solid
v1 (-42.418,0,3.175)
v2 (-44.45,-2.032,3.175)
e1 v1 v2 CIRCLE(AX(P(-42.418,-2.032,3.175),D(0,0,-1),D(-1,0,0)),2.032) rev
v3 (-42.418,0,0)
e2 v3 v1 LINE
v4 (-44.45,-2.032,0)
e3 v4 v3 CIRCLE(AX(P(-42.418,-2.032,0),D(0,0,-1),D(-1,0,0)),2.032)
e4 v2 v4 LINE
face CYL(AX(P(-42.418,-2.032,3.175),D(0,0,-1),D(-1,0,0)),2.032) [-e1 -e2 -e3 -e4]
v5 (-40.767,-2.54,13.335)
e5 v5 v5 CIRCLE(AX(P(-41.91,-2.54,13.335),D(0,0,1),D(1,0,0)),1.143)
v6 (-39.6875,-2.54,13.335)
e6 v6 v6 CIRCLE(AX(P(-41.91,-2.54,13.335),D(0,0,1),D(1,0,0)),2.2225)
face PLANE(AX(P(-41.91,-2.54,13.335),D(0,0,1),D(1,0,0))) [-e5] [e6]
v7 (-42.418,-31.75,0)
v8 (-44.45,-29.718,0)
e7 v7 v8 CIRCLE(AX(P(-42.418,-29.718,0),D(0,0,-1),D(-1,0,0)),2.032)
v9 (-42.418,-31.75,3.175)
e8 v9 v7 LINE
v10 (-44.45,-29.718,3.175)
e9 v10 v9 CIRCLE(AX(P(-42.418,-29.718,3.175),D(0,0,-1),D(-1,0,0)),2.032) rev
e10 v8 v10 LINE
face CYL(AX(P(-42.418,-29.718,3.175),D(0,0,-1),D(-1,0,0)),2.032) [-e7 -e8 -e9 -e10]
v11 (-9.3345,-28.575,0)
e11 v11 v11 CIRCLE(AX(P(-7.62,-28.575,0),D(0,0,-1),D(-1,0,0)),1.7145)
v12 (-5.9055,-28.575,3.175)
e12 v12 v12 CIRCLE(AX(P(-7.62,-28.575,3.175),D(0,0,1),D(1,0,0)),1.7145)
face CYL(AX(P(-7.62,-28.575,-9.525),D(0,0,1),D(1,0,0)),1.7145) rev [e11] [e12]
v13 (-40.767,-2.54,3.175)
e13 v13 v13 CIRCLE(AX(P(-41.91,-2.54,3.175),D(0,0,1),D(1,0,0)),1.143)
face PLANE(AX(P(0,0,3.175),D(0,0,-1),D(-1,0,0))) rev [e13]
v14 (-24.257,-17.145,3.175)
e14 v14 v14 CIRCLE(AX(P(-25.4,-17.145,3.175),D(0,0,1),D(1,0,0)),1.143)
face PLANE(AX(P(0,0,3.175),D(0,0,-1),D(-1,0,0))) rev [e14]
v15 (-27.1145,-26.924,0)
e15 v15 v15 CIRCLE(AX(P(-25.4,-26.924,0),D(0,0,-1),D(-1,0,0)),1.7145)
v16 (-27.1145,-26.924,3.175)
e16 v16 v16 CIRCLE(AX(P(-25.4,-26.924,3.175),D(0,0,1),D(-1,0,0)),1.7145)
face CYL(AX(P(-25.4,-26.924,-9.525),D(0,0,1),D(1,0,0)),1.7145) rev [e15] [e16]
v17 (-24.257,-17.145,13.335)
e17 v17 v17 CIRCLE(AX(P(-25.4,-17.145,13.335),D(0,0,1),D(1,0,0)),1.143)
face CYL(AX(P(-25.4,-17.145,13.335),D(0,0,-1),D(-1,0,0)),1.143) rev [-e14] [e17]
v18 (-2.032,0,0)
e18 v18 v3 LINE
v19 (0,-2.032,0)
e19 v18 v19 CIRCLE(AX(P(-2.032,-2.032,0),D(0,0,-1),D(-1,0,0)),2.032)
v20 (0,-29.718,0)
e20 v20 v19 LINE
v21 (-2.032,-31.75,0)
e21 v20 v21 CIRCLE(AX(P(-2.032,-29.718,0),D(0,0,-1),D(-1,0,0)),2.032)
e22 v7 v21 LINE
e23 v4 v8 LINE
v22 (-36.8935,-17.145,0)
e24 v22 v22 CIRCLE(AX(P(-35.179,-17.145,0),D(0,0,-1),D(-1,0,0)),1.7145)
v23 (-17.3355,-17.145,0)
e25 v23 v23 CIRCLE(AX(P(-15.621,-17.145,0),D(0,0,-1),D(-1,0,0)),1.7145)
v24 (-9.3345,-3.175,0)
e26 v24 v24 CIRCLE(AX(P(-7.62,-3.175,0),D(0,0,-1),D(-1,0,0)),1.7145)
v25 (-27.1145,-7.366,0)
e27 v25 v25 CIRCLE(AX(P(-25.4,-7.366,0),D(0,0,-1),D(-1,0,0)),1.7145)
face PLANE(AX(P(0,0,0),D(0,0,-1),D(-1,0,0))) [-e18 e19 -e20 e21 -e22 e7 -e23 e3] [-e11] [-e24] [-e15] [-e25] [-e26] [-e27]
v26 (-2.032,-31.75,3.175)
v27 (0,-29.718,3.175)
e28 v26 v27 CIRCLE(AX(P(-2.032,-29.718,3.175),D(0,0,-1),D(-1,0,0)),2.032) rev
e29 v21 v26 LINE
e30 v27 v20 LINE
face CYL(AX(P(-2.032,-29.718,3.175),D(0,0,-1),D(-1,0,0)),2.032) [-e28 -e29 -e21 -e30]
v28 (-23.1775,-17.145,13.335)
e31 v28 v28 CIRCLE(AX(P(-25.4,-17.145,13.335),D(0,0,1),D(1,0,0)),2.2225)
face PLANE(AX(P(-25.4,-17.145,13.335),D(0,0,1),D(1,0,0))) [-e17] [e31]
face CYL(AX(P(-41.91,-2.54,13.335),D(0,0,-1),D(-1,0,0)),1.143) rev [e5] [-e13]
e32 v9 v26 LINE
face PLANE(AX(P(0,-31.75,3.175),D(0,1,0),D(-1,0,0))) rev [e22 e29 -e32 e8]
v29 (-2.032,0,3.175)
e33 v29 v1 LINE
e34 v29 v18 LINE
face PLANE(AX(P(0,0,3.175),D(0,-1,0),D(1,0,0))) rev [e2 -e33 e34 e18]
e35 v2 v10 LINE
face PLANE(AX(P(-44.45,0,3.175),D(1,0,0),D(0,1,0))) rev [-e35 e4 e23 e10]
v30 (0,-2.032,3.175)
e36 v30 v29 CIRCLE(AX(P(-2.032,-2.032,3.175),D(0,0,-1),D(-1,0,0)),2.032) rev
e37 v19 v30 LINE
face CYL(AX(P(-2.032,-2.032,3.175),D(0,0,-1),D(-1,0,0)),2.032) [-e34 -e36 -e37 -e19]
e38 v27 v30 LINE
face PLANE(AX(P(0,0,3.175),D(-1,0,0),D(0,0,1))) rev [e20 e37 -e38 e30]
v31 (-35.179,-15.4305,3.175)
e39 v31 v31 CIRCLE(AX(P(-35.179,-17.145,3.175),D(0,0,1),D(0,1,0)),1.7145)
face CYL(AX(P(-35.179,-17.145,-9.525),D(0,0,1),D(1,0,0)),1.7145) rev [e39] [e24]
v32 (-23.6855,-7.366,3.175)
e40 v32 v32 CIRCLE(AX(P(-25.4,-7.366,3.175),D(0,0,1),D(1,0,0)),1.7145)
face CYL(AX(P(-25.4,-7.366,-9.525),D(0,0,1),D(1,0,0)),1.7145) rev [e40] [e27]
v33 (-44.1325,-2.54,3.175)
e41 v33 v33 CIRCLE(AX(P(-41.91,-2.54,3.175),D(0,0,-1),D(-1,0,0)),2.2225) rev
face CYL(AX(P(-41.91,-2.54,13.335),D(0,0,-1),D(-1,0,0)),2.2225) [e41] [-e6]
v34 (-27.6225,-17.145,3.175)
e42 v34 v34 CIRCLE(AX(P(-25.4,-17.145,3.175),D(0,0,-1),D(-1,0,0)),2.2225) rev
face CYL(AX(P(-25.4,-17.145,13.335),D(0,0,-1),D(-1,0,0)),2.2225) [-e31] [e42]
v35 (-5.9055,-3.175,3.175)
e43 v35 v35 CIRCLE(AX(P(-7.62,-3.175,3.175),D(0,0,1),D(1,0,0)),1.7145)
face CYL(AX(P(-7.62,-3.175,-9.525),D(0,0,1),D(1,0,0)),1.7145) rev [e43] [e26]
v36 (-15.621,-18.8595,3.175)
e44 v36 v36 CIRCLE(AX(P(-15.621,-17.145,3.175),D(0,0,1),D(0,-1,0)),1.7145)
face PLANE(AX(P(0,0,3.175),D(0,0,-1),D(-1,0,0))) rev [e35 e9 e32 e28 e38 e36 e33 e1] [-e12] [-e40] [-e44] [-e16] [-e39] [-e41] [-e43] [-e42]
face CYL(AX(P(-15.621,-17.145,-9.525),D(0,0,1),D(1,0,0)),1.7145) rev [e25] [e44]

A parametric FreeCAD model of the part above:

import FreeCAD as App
import Part
import Sketcher
from FreeCAD import Vector
Q = App.Units.Quantity


def edges_at(feature, points):
    """Names of the edges that pass closest to the given points."""
    edges = feature.Shape.Edges
    near = lambda p: min(range(len(edges)), key=lambda i: edges[i].distToShape(Part.Vertex(*p))[0])
    return sorted({f"Edge{near(p) + 1}" for p in points})


def add_polygon(sketch, points):
    """Adds a closed chain of lines whose ends are joined by coincident constraints."""
    first, n = sketch.GeometryCount, len(points)
    for a, b in zip(points, points[1:] + points[:1]):
        sketch.addGeometry(Part.LineSegment(App.Vector(*a, 0), App.Vector(*b, 0)), False)
    for i in range(n):
        sketch.addConstraint(Sketcher.Constraint("Coincident", first + i, 2, first + (i + 1) % n, 1))

doc = App.newDocument("Part")
body = doc.addObject("PartDesign::Body", "Body")

# Sketch on XY plane
sketch1 = body.newObject("Sketcher::SketchObject", "Sketch")
sketch1.AttachmentSupport = (doc.getObject("XY_Plane"), [""])
sketch1.MapMode = "FlatFace"
add_polygon(sketch1, [(-44, 0), (-44, -32), (0, -32), (0, 0)])  # lines 0-3
sketch1.addConstraint(Sketcher.Constraint("Vertical", 0))
sketch1.addConstraint(Sketcher.Constraint("Horizontal", 1))
sketch1.addConstraint(Sketcher.Constraint("Vertical", 2))
sketch1.addConstraint(Sketcher.Constraint("Horizontal", 3))
sketch1.addConstraint(Sketcher.Constraint("Coincident", 2, 2, -1, 1))
sketch1.addConstraint(Sketcher.Constraint("DistanceX", 1, 1, 1, 2, Q("1.75 in")))
sketch1.addConstraint(Sketcher.Constraint("DistanceY", 0, 2, 0, 1, Q("1.25 in")))
pad1 = body.newObject("PartDesign::Pad", "Pad")
pad1.Profile = sketch1
pad1.Length = Q("0.125 in")

# Sketch on XY plane
sketch2 = body.newObject("Sketcher::SketchObject", "Sketch001")
sketch2.AttachmentSupport = (doc.getObject("XY_Plane"), [""])
sketch2.MapMode = "FlatFace"
sketch2.AttachmentOffset = App.Placement(Vector(0, 0, 0.125 * 25.4), App.Rotation())
sketch2.addGeometry(Part.Circle(Vector(-41.9, -2.5, 0), Vector(0, 0, 1), 2.2), False)
sketch2.addGeometry(Part.Circle(Vector(-41.9, -2.5, 0), Vector(0, 0, 1), 1.1), False)
sketch2.addGeometry(Part.Circle(Vector(-25.4, -17.1, 0), Vector(0, 0, 1), 2.2), False)
sketch2.addGeometry(Part.Circle(Vector(-25.4, -17.1, 0), Vector(0, 0, 1), 1.1), False)
sketch2.addConstraint(Sketcher.Constraint("Coincident", 1, 3, 0, 3))
sketch2.addConstraint(Sketcher.Constraint("Coincident", 3, 3, 2, 3))
sketch2.addConstraint(Sketcher.Constraint("Equal", 0, 2))
sketch2.addConstraint(Sketcher.Constraint("Equal", 1, 3))
sketch2.addConstraint(Sketcher.Constraint("Diameter", 1, Q("0.09 in")))
sketch2.addConstraint(Sketcher.Constraint("Diameter", 0, Q("0.175 in")))
sketch2.addConstraint(Sketcher.Constraint("DistanceX", 2, 3, -1, 1, Q("1 in")))
sketch2.addConstraint(Sketcher.Constraint("DistanceY", 0, 3, -1, 1, Q("0.1 in")))
sketch2.addConstraint(Sketcher.Constraint("DistanceX", 0, 3, -1, 1, Q("1.65 in")))
sketch2.addConstraint(Sketcher.Constraint("DistanceY", 2, 3, -1, 1, Q("0.675 in")))
pad2 = body.newObject("PartDesign::Pad", "Pad001")
pad2.Profile = sketch2
pad2.Length = Q("0.4 in")

# Sketch on XY plane
sketch3 = body.newObject("Sketcher::SketchObject", "Sketch002")
sketch3.AttachmentSupport = (doc.getObject("XY_Plane"), [""])
sketch3.MapMode = "FlatFace"
sketch3.AttachmentOffset = App.Placement(Vector(0, 0, 0.125 * 25.4), App.Rotation())
sketch3.addGeometry(Part.Circle(Vector(-7.6, -3.2, 0), Vector(0, 0, 1), 1.7), False)
sketch3.addGeometry(Part.Circle(Vector(-7.6, -28.6, 0), Vector(0, 0, 1), 1.7), False)
sketch3.addConstraint(Sketcher.Constraint("Equal", 0, 1))
sketch3.addConstraint(Sketcher.Constraint("Vertical", 0, 3, 1, 3))
sketch3.addConstraint(Sketcher.Constraint("Diameter", 0, Q("0.135 in")))
sketch3.addConstraint(Sketcher.Constraint("DistanceY", 1, 3, 0, 3, Q("1 in")))
sketch3.addConstraint(Sketcher.Constraint("DistanceX", 0, 3, -1, 1, Q("0.3 in")))
sketch3.addConstraint(Sketcher.Constraint("DistanceY", 0, 3, -1, 1, Q("0.125 in")))
pocket1 = body.newObject("PartDesign::Pocket", "Pocket")
pocket1.Profile = sketch3
pocket1.Length = Q("0.5 in")

# Sketch on XY plane
sketch4 = body.newObject("Sketcher::SketchObject", "Sketch003")
sketch4.AttachmentSupport = (doc.getObject("XY_Plane"), [""])
sketch4.MapMode = "FlatFace"
sketch4.AttachmentOffset = App.Placement(Vector(0, 0, 0.125 * 25.4), App.Rotation())
sketch4.addGeometry(Part.Circle(Vector(-25.4, -7.4, 0), Vector(0, 0, 1), 1.7), False)
sketch4.addConstraint(Sketcher.Constraint("Diameter", 0, Q("0.135 in")))
sketch4.addConstraint(Sketcher.Constraint("DistanceX", 0, 3, -1, 1, Q("1 in")))
sketch4.addConstraint(Sketcher.Constraint("DistanceY", 0, 3, -1, 1, Q("0.29 in")))
pocket2 = body.newObject("PartDesign::Pocket", "Pocket001")
pocket2.Profile = sketch4
pocket2.Length = Q("0.5 in")
doc.recompute()

datumline = body.newObject("PartDesign::Line", "DatumLine")
datumline.Placement = App.Placement(Vector(-25.4, -17.145, 0), App.Rotation(Vector(0, 0, 1), Vector(0, 0, 1)))
polarpattern = body.newObject("PartDesign::PolarPattern", "PolarPattern")
polarpattern.Originals = [pocket2]
polarpattern.Axis = (datumline, [""])
polarpattern.Angle = 360
polarpattern.Occurrences = 4
body.Tip = polarpattern
doc.recompute()

fillet = body.newObject("PartDesign::Fillet", "Fillet")
fillet.Base = (polarpattern, edges_at(polarpattern, [
    (0, -31.75, 1.587),
    (-44.45, -31.75, 1.587),
    (-44.45, 0, 1.587),
    (0, 0, 1.587),
]))
fillet.Radius = Q("0.08 in")

doc.recompute()
